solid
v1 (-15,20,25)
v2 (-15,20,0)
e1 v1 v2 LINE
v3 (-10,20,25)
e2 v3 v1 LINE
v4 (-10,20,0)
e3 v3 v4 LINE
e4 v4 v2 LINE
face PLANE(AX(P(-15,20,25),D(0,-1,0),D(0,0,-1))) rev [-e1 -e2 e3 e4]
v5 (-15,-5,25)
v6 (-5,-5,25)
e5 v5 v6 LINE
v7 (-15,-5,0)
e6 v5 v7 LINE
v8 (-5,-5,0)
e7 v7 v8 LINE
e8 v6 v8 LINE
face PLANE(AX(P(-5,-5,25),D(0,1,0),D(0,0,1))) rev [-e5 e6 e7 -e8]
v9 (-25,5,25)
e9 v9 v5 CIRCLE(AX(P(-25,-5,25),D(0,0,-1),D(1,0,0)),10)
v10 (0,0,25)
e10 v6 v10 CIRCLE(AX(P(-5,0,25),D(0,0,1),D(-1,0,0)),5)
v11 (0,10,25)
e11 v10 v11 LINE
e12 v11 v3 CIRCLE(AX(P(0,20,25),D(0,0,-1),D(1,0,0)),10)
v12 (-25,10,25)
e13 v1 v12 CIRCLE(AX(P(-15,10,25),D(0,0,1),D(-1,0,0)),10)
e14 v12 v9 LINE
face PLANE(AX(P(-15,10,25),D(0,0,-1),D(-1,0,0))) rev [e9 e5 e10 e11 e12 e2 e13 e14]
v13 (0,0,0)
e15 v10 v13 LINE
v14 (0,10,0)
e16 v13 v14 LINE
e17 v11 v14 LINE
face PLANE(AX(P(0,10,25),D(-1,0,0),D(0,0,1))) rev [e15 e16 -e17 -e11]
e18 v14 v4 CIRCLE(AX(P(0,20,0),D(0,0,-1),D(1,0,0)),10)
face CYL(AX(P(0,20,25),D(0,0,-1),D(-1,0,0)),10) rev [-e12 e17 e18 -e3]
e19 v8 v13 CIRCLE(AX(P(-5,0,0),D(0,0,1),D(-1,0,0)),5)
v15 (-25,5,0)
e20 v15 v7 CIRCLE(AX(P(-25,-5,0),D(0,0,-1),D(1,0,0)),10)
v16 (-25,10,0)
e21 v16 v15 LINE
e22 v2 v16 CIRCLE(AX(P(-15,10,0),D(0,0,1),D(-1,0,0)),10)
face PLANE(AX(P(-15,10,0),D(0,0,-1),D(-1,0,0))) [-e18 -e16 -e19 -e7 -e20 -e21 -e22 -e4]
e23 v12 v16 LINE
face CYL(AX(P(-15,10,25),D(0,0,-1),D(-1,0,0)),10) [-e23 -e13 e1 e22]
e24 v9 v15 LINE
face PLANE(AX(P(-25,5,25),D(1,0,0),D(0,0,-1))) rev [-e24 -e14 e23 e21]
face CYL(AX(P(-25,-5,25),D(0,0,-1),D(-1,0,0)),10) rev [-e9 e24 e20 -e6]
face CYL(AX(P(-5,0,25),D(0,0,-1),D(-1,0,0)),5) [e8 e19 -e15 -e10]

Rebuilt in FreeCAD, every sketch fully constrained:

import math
import FreeCAD as App
import Part
import Sketcher
Q = App.Units.Quantity

doc = App.newDocument("Part")
body = doc.addObject("PartDesign::Body", "Body")

# Sketch on XY plane
sketch1 = body.newObject("Sketcher::SketchObject", "Sketch")
sketch1.AttachmentSupport = (doc.getObject("XY_Plane"), [""])
sketch1.MapMode = "FlatFace"
sketch1.addGeometry([
    Part.LineSegment(App.Vector(-10, 20, 0), App.Vector(-15, 20, 0)),  # 0
    Part.ArcOfCircle(Part.Circle(App.Vector(-15, 10, 0), App.Vector(0, 0, 1), 10), math.radians(90), math.radians(180)),  # 1
    Part.LineSegment(App.Vector(-25, 10, 0), App.Vector(-25, 5, 0)),  # 2
    Part.ArcOfCircle(Part.Circle(App.Vector(-25, -5, 0), App.Vector(0, 0, 1), 10), math.radians(0), math.radians(90)),  # 3
    Part.LineSegment(App.Vector(-15, -5, 0), App.Vector(-5, -5, 0)),  # 4
    Part.ArcOfCircle(Part.Circle(App.Vector(-5, 0, 0), App.Vector(0, 0, 1), 5), math.radians(-90), math.radians(0)),  # 5
    Part.LineSegment(App.Vector(0, 0, 0), App.Vector(0, 10, 0)),  # 6
    Part.ArcOfCircle(Part.Circle(App.Vector(0, 20, 0), App.Vector(0, 0, 1), 10), math.radians(180), math.radians(270)),  # 7
], False)
sketch1.addConstraint([
    Sketcher.Constraint("Tangent", 0, 2, 1, 1),
    Sketcher.Constraint("Tangent", 1, 2, 2, 1),
    Sketcher.Constraint("Coincident", 2, 2, 3, 2),
    Sketcher.Constraint("Coincident", 3, 1, 4, 1),
    Sketcher.Constraint("Tangent", 4, 2, 5, 1),
    Sketcher.Constraint("Tangent", 5, 2, 6, 1),
    Sketcher.Constraint("Coincident", 6, 2, 7, 2),
    Sketcher.Constraint("Coincident", 7, 1, 0, 1),
    Sketcher.Constraint("Horizontal", 0),
    Sketcher.Constraint("Vertical", 2),
    Sketcher.Constraint("Horizontal", 4),
    Sketcher.Constraint("Vertical", 6),
    Sketcher.Constraint("Coincident", 5, 2, -1, 1),
    Sketcher.Constraint("Equal", 1, 3),
    Sketcher.Constraint("Equal", 3, 7),
    Sketcher.Constraint("PointOnObject", 7, 3, -2),
    Sketcher.Constraint("Horizontal", 7, 3, 0, 2),
    Sketcher.Constraint("Vertical", 3, 3, 1, 2),
    Sketcher.Constraint("Equal", 0, 2),
    Sketcher.Constraint("Equal", 4, 6),
    Sketcher.Constraint("Radius", 1, Q("10 mm")),
    Sketcher.Constraint("Radius", 5, Q("5 mm")),
    Sketcher.Constraint("DistanceX", 0, 2, 0, 1, Q("5 mm")),
])
pad1 = body.newObject("PartDesign::Pad", "Pad")
pad1.Profile = sketch1
pad1.Length = 25

doc.recompute()
